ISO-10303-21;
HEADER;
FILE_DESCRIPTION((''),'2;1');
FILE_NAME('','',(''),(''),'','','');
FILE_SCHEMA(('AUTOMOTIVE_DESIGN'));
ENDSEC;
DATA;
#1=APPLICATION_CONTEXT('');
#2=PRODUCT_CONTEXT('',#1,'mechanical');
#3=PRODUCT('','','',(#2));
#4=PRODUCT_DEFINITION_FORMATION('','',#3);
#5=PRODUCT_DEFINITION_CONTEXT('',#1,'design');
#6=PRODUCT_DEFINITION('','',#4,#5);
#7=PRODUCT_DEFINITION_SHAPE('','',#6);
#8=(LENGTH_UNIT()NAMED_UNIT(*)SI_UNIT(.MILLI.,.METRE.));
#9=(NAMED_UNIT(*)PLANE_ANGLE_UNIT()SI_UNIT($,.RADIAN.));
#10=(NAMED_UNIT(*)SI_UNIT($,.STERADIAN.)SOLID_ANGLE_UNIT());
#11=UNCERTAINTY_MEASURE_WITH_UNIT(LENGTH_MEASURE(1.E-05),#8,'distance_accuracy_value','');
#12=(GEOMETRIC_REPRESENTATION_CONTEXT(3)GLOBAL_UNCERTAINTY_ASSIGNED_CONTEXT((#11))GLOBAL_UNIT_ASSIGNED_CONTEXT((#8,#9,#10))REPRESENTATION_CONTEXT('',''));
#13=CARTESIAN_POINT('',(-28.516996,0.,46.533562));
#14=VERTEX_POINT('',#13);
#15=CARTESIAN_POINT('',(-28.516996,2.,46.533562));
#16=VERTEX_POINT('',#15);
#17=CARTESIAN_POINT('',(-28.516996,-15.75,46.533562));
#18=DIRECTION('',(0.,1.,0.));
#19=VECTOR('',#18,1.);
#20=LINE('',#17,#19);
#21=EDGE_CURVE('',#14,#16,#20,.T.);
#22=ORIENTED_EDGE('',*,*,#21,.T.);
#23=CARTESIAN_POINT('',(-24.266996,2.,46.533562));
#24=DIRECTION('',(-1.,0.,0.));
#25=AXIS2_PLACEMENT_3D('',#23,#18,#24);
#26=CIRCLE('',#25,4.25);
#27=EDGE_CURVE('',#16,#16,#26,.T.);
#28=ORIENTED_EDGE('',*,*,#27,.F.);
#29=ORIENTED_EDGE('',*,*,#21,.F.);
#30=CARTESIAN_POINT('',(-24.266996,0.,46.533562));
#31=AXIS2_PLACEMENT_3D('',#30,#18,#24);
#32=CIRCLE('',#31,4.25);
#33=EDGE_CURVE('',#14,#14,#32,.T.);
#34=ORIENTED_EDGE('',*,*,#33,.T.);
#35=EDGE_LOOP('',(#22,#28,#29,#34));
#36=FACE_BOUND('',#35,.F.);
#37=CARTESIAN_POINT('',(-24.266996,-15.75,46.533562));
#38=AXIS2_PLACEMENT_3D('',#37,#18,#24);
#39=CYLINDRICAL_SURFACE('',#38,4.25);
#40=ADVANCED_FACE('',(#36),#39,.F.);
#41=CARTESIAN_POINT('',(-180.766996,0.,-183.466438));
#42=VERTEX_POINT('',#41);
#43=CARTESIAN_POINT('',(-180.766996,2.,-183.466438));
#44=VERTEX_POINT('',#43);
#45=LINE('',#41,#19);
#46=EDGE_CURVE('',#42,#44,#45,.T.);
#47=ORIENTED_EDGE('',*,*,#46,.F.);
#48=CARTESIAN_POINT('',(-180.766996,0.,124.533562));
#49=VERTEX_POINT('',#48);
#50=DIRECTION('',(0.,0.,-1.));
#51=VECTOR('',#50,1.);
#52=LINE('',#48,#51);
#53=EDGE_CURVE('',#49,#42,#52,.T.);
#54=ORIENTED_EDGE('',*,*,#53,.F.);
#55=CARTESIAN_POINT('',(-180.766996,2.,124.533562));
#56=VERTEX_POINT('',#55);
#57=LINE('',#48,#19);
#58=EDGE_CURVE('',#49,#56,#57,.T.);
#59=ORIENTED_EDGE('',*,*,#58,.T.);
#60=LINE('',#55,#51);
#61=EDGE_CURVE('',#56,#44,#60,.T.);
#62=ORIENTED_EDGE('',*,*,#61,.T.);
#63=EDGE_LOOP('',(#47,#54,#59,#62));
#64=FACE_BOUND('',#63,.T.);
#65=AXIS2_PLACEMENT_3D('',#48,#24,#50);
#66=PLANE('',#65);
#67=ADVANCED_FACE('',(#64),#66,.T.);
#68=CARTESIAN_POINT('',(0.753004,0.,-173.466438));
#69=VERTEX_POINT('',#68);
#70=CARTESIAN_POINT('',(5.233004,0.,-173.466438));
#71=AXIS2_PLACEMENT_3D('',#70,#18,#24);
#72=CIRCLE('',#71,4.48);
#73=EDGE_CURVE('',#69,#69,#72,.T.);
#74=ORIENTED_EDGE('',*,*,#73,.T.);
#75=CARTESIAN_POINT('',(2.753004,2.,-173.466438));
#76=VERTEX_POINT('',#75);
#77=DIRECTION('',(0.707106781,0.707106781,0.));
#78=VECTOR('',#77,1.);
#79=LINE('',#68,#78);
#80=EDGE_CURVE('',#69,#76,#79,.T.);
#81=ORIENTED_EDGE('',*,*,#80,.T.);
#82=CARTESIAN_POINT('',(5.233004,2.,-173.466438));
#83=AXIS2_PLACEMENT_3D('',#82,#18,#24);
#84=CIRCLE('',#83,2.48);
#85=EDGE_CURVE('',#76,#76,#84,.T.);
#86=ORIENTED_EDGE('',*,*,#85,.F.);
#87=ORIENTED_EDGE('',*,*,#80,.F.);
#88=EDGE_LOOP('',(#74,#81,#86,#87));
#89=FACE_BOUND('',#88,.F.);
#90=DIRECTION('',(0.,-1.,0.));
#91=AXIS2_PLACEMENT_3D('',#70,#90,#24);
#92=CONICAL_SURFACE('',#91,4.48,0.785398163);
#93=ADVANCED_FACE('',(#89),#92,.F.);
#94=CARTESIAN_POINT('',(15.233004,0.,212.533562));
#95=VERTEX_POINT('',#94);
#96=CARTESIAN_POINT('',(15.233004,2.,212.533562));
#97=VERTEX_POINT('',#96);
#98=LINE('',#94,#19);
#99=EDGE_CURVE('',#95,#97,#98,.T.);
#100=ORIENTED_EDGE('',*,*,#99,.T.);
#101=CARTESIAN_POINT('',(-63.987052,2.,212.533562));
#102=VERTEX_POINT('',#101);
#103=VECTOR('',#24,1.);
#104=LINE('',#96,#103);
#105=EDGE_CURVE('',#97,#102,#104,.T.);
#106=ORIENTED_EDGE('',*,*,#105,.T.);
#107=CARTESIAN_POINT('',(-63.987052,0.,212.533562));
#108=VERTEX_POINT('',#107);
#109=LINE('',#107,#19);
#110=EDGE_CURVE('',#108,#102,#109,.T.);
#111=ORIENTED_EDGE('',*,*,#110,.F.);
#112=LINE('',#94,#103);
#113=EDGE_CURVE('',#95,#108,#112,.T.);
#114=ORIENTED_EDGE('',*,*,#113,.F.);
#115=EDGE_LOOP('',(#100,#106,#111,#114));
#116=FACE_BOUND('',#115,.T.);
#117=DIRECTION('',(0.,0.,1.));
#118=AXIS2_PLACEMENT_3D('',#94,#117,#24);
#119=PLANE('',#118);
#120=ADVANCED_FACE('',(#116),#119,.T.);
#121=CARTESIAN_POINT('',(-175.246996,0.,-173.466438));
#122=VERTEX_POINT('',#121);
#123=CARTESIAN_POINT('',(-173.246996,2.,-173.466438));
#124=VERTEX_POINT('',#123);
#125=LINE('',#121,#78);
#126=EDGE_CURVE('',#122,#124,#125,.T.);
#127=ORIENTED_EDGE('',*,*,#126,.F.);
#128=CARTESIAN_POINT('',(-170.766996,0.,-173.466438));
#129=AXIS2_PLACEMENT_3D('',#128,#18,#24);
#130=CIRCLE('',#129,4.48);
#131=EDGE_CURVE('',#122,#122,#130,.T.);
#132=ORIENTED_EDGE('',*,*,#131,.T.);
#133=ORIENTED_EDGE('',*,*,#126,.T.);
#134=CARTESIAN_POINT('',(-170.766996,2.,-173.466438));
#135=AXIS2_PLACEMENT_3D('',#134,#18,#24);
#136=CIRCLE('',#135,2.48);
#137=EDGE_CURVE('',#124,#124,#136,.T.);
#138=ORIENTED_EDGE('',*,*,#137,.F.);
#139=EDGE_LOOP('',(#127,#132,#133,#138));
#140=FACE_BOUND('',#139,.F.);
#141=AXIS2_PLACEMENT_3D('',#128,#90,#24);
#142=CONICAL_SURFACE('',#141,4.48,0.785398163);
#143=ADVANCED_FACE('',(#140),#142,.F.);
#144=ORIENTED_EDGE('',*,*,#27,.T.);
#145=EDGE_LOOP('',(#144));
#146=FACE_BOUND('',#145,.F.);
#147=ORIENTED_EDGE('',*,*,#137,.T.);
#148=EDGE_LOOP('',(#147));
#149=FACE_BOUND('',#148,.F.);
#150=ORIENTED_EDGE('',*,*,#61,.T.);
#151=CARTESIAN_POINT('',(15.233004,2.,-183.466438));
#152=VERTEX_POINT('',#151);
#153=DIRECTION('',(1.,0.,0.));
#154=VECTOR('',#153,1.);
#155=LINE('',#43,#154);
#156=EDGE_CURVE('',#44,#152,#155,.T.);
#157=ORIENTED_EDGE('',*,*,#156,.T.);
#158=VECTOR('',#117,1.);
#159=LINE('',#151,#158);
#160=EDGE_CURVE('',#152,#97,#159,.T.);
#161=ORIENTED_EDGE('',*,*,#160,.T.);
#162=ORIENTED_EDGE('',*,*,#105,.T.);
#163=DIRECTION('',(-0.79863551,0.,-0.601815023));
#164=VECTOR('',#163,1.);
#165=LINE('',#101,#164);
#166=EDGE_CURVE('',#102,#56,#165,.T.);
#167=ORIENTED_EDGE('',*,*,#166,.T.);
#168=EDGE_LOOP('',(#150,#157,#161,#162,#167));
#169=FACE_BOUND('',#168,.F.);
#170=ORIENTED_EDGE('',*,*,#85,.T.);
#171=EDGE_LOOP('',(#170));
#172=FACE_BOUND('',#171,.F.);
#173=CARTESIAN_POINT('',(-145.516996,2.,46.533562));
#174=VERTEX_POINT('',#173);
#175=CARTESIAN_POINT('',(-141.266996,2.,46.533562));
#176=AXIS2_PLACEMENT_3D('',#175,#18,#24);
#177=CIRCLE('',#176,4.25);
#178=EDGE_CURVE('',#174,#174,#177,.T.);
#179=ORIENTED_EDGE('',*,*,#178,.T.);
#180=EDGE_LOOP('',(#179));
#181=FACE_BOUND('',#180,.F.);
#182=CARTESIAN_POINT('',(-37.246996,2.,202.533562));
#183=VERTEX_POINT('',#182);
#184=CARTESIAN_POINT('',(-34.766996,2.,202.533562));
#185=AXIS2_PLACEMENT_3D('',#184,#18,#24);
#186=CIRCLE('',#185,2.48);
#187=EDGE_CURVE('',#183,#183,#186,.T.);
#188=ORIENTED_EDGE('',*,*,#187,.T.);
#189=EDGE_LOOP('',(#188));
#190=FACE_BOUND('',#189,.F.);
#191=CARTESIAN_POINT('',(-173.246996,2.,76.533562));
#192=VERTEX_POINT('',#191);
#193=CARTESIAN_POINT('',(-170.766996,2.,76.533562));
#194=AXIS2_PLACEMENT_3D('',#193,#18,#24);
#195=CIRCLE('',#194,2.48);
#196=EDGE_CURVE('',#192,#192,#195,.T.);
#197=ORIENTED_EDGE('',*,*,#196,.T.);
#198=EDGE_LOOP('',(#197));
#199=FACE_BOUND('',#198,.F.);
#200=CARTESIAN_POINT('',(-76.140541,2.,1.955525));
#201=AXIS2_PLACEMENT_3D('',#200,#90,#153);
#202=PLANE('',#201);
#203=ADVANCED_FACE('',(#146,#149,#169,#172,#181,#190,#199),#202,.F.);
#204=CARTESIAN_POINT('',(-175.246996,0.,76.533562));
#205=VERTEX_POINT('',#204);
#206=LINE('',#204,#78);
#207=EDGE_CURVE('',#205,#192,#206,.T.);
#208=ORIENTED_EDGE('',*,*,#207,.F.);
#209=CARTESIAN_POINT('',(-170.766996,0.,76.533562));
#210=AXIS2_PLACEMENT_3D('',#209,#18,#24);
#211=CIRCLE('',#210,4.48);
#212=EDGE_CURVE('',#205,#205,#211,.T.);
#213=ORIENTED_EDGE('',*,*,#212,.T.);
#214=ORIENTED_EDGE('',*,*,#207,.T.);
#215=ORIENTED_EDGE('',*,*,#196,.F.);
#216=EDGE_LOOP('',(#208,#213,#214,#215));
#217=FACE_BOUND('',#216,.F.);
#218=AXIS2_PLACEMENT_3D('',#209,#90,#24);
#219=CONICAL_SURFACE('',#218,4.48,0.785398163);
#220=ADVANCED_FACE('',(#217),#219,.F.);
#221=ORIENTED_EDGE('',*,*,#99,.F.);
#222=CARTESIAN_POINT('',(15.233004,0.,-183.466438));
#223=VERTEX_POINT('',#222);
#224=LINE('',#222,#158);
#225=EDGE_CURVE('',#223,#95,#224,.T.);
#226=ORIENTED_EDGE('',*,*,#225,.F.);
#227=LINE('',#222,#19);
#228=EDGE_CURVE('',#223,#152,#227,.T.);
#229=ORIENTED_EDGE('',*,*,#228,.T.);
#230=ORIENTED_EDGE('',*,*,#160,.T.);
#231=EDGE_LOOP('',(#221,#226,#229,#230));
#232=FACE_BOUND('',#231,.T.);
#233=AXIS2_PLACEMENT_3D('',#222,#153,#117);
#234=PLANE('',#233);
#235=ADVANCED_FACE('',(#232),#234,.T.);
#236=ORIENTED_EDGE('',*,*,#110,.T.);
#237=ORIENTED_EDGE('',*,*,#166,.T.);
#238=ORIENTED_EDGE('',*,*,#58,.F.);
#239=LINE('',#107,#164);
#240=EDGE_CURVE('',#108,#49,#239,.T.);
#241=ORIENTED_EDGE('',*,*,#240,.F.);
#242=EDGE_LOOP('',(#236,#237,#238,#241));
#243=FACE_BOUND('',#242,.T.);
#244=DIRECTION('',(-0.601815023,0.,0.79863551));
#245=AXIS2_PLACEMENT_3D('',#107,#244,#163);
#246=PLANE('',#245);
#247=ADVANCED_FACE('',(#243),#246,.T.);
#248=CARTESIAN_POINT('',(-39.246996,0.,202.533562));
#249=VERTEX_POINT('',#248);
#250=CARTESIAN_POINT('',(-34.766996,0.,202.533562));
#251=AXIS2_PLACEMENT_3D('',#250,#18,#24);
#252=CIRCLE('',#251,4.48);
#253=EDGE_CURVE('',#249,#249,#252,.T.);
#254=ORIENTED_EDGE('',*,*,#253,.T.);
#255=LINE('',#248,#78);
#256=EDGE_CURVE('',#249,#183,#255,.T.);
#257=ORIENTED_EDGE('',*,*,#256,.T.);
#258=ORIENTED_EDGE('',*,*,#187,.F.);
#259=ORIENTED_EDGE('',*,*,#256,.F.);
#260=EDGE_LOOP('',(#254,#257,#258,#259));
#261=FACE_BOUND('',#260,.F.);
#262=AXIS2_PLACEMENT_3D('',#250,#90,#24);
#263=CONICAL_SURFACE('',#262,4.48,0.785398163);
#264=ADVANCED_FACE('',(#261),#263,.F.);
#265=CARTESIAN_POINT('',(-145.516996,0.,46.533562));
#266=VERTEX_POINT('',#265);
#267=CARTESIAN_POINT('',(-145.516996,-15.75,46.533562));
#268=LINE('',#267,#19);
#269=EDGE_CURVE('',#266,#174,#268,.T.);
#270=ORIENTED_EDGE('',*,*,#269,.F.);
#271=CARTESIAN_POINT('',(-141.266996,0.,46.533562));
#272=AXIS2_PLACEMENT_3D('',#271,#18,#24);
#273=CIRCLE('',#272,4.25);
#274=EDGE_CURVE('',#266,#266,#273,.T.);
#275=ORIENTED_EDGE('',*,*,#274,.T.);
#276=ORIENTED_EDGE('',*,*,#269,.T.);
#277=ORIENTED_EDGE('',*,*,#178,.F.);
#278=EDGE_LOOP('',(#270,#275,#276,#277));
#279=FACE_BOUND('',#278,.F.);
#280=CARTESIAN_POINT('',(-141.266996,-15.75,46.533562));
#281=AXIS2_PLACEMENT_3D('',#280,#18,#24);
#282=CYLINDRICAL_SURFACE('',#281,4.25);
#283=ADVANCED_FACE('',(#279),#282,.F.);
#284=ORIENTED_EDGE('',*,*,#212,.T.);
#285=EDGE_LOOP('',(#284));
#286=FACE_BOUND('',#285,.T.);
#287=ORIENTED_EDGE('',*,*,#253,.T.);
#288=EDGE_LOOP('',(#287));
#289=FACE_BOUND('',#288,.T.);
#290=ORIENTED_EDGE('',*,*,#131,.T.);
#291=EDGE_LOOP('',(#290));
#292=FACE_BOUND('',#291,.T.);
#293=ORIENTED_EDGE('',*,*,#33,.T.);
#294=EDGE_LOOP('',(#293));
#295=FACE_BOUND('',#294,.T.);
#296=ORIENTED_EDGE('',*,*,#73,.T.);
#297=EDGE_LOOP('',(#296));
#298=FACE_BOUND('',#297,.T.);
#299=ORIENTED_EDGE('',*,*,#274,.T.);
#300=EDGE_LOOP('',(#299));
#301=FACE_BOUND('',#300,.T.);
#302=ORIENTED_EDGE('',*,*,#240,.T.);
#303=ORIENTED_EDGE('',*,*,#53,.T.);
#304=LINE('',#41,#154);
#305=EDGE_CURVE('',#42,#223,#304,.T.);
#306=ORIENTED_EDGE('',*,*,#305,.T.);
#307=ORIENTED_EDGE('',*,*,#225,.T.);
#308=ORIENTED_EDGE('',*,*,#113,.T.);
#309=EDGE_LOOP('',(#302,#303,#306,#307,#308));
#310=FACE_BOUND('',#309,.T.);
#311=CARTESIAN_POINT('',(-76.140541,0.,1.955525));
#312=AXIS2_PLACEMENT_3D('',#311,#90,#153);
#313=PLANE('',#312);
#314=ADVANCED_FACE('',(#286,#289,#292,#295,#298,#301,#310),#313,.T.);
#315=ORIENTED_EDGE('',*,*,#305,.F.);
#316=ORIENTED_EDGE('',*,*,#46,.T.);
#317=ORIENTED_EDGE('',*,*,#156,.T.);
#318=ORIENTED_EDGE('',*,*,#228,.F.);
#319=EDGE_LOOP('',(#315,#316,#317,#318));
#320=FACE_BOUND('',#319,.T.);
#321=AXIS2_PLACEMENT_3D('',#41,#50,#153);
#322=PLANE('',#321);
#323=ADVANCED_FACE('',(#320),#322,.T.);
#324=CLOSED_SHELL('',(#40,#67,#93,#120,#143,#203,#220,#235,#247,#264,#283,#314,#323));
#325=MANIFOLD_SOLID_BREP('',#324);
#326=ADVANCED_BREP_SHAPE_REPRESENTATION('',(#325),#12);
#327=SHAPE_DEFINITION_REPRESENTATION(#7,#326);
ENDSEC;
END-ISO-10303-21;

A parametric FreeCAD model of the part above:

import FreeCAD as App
import Part
import Sketcher
from FreeCAD import Vector
Q = App.Units.Quantity

doc = App.newDocument("Part")
body = doc.addObject("PartDesign::Body", "Body")

# Sketch on XZ plane
sketch1 = body.newObject("Sketcher::SketchObject", "Sketch")
sketch1.AttachmentSupport = (doc.getObject("XZ_Plane"), [""])
sketch1.MapMode = "FlatFace"
sketch1.addGeometry([
    Part.LineSegment(Vector(-181, 125, 0), Vector(-181, -183, 0)),  # 0
    Part.LineSegment(Vector(-181, -183, 0), Vector(15, -183, 0)),  # 1
    Part.LineSegment(Vector(15, -183, 0), Vector(15, 213, 0)),  # 2
    Part.LineSegment(Vector(15, 213, 0), Vector(-64, 213, 0)),  # 3
    Part.LineSegment(Vector(-64, 213, 0), Vector(-181, 125, 0)),  # 4
], False)
sketch1.addConstraint([
    Sketcher.Constraint("Coincident", 0, 2, 1, 1),
    Sketcher.Constraint("Coincident", 1, 2, 2, 1),
    Sketcher.Constraint("Coincident", 2, 2, 3, 1),
    Sketcher.Constraint("Coincident", 3, 2, 4, 1),
    Sketcher.Constraint("Coincident", 4, 2, 0, 1),
    Sketcher.Constraint("Vertical", 0),
    Sketcher.Constraint("Horizontal", 1),
    Sketcher.Constraint("Vertical", 2),
    Sketcher.Constraint("Horizontal", 3),
    Sketcher.Constraint("DistanceX", 1, 1, 1, 2, 196.0),
    Sketcher.Constraint("DistanceY", 0, 2, 0, 1, 308.0),
    Sketcher.Constraint("DistanceY", 2, 1, 2, 2, 396.0),
    Sketcher.Constraint("Angle", 4, Q("-143 deg")),
    Sketcher.Constraint("DistanceX", 3, 2, -1, 1, 63.987052),
    Sketcher.Constraint("DistanceY", 0, 2, -1, 1, 183.466438),
])
pad1 = body.newObject("PartDesign::Pad", "Pad")
pad1.Profile = sketch1
pad1.Length = 2
pad1.Reversed = True

# Sketch on XZ plane
sketch2 = body.newObject("Sketcher::SketchObject", "Sketch001")
sketch2.AttachmentSupport = (doc.getObject("XZ_Plane"), [""])
sketch2.MapMode = "FlatFace"
sketch2.addGeometry([
    Part.Circle(Vector(-141.3, 46.5, 0), Vector(0, 0, 1), 4.2),
    Part.Circle(Vector(-24.3, 46.5, 0), Vector(0, 0, 1), 4.2),
], False)
sketch2.addConstraint([
    Sketcher.Constraint("Equal", 0, 1),
    Sketcher.Constraint("Horizontal", 0, 3, 1, 3),
    Sketcher.Constraint("Diameter", 0, 8.5),
    Sketcher.Constraint("DistanceX", 0, 3, 1, 3, 117.0),
    Sketcher.Constraint("DistanceX", 0, 3, -1, 1, 141.266996),
    Sketcher.Constraint("DistanceY", -1, 1, 0, 3, 46.533562),
])
doc.recompute()
hole = body.newObject("PartDesign::Hole", "Hole")
hole.Profile = sketch2
hole.ThreadType = "None"
hole.Diameter = 8.5
hole.DepthType = "Dimension"
hole.Depth = 15.75
hole.DrillPoint = "Angled"
hole.DrillPointAngle = 118

# Sketch on XZ plane
sketch3 = body.newObject("Sketcher::SketchObject", "Sketch002")
sketch3.AttachmentSupport = (doc.getObject("XZ_Plane"), [""])
sketch3.MapMode = "FlatFace"
sketch3.addGeometry([
    Part.Circle(Vector(-170.8, 76.5, 0), Vector(0, 0, 1), 2.2),
    Part.Circle(Vector(-34.8, 202.5, 0), Vector(0, 0, 1), 2.2),
    Part.Circle(Vector(5.2, -173.5, 0), Vector(0, 0, 1), 2.2),
    Part.Circle(Vector(-170.8, -173.5, 0), Vector(0, 0, 1), 2.2),
], False)
sketch3.addConstraint([
    Sketcher.Constraint("Equal", 0, 1),
    Sketcher.Constraint("Equal", 1, 2),
    Sketcher.Constraint("Equal", 2, 3),
    Sketcher.Constraint("Horizontal", 2, 3, 3, 3),
    Sketcher.Constraint("Vertical", 0, 3, 3, 3),
    Sketcher.Constraint("Diameter", 0, 4.4),
    Sketcher.Constraint("DistanceX", 0, 3, 1, 3, 136.0),
    Sketcher.Constraint("DistanceY", 0, 3, 1, 3, 126.0),
    Sketcher.Constraint("DistanceX", 0, 3, 2, 3, 176.0),
    Sketcher.Constraint("DistanceY", 2, 3, 0, 3, 250.0),
    Sketcher.Constraint("DistanceX", 0, 3, -1, 1, 170.766996),
    Sketcher.Constraint("DistanceY", -1, 1, 0, 3, 76.533562),
])
doc.recompute()
hole2 = body.newObject("PartDesign::Hole", "Hole001")
hole2.Profile = sketch3
hole2.ThreadType = "None"
hole2.Diameter = 4.4
hole2.DepthType = "ThroughAll"
hole2.HoleCutType = "Countersink"
hole2.HoleCutDiameter = 8.96
hole2.HoleCutCountersinkAngle = 90

doc.recompute()
